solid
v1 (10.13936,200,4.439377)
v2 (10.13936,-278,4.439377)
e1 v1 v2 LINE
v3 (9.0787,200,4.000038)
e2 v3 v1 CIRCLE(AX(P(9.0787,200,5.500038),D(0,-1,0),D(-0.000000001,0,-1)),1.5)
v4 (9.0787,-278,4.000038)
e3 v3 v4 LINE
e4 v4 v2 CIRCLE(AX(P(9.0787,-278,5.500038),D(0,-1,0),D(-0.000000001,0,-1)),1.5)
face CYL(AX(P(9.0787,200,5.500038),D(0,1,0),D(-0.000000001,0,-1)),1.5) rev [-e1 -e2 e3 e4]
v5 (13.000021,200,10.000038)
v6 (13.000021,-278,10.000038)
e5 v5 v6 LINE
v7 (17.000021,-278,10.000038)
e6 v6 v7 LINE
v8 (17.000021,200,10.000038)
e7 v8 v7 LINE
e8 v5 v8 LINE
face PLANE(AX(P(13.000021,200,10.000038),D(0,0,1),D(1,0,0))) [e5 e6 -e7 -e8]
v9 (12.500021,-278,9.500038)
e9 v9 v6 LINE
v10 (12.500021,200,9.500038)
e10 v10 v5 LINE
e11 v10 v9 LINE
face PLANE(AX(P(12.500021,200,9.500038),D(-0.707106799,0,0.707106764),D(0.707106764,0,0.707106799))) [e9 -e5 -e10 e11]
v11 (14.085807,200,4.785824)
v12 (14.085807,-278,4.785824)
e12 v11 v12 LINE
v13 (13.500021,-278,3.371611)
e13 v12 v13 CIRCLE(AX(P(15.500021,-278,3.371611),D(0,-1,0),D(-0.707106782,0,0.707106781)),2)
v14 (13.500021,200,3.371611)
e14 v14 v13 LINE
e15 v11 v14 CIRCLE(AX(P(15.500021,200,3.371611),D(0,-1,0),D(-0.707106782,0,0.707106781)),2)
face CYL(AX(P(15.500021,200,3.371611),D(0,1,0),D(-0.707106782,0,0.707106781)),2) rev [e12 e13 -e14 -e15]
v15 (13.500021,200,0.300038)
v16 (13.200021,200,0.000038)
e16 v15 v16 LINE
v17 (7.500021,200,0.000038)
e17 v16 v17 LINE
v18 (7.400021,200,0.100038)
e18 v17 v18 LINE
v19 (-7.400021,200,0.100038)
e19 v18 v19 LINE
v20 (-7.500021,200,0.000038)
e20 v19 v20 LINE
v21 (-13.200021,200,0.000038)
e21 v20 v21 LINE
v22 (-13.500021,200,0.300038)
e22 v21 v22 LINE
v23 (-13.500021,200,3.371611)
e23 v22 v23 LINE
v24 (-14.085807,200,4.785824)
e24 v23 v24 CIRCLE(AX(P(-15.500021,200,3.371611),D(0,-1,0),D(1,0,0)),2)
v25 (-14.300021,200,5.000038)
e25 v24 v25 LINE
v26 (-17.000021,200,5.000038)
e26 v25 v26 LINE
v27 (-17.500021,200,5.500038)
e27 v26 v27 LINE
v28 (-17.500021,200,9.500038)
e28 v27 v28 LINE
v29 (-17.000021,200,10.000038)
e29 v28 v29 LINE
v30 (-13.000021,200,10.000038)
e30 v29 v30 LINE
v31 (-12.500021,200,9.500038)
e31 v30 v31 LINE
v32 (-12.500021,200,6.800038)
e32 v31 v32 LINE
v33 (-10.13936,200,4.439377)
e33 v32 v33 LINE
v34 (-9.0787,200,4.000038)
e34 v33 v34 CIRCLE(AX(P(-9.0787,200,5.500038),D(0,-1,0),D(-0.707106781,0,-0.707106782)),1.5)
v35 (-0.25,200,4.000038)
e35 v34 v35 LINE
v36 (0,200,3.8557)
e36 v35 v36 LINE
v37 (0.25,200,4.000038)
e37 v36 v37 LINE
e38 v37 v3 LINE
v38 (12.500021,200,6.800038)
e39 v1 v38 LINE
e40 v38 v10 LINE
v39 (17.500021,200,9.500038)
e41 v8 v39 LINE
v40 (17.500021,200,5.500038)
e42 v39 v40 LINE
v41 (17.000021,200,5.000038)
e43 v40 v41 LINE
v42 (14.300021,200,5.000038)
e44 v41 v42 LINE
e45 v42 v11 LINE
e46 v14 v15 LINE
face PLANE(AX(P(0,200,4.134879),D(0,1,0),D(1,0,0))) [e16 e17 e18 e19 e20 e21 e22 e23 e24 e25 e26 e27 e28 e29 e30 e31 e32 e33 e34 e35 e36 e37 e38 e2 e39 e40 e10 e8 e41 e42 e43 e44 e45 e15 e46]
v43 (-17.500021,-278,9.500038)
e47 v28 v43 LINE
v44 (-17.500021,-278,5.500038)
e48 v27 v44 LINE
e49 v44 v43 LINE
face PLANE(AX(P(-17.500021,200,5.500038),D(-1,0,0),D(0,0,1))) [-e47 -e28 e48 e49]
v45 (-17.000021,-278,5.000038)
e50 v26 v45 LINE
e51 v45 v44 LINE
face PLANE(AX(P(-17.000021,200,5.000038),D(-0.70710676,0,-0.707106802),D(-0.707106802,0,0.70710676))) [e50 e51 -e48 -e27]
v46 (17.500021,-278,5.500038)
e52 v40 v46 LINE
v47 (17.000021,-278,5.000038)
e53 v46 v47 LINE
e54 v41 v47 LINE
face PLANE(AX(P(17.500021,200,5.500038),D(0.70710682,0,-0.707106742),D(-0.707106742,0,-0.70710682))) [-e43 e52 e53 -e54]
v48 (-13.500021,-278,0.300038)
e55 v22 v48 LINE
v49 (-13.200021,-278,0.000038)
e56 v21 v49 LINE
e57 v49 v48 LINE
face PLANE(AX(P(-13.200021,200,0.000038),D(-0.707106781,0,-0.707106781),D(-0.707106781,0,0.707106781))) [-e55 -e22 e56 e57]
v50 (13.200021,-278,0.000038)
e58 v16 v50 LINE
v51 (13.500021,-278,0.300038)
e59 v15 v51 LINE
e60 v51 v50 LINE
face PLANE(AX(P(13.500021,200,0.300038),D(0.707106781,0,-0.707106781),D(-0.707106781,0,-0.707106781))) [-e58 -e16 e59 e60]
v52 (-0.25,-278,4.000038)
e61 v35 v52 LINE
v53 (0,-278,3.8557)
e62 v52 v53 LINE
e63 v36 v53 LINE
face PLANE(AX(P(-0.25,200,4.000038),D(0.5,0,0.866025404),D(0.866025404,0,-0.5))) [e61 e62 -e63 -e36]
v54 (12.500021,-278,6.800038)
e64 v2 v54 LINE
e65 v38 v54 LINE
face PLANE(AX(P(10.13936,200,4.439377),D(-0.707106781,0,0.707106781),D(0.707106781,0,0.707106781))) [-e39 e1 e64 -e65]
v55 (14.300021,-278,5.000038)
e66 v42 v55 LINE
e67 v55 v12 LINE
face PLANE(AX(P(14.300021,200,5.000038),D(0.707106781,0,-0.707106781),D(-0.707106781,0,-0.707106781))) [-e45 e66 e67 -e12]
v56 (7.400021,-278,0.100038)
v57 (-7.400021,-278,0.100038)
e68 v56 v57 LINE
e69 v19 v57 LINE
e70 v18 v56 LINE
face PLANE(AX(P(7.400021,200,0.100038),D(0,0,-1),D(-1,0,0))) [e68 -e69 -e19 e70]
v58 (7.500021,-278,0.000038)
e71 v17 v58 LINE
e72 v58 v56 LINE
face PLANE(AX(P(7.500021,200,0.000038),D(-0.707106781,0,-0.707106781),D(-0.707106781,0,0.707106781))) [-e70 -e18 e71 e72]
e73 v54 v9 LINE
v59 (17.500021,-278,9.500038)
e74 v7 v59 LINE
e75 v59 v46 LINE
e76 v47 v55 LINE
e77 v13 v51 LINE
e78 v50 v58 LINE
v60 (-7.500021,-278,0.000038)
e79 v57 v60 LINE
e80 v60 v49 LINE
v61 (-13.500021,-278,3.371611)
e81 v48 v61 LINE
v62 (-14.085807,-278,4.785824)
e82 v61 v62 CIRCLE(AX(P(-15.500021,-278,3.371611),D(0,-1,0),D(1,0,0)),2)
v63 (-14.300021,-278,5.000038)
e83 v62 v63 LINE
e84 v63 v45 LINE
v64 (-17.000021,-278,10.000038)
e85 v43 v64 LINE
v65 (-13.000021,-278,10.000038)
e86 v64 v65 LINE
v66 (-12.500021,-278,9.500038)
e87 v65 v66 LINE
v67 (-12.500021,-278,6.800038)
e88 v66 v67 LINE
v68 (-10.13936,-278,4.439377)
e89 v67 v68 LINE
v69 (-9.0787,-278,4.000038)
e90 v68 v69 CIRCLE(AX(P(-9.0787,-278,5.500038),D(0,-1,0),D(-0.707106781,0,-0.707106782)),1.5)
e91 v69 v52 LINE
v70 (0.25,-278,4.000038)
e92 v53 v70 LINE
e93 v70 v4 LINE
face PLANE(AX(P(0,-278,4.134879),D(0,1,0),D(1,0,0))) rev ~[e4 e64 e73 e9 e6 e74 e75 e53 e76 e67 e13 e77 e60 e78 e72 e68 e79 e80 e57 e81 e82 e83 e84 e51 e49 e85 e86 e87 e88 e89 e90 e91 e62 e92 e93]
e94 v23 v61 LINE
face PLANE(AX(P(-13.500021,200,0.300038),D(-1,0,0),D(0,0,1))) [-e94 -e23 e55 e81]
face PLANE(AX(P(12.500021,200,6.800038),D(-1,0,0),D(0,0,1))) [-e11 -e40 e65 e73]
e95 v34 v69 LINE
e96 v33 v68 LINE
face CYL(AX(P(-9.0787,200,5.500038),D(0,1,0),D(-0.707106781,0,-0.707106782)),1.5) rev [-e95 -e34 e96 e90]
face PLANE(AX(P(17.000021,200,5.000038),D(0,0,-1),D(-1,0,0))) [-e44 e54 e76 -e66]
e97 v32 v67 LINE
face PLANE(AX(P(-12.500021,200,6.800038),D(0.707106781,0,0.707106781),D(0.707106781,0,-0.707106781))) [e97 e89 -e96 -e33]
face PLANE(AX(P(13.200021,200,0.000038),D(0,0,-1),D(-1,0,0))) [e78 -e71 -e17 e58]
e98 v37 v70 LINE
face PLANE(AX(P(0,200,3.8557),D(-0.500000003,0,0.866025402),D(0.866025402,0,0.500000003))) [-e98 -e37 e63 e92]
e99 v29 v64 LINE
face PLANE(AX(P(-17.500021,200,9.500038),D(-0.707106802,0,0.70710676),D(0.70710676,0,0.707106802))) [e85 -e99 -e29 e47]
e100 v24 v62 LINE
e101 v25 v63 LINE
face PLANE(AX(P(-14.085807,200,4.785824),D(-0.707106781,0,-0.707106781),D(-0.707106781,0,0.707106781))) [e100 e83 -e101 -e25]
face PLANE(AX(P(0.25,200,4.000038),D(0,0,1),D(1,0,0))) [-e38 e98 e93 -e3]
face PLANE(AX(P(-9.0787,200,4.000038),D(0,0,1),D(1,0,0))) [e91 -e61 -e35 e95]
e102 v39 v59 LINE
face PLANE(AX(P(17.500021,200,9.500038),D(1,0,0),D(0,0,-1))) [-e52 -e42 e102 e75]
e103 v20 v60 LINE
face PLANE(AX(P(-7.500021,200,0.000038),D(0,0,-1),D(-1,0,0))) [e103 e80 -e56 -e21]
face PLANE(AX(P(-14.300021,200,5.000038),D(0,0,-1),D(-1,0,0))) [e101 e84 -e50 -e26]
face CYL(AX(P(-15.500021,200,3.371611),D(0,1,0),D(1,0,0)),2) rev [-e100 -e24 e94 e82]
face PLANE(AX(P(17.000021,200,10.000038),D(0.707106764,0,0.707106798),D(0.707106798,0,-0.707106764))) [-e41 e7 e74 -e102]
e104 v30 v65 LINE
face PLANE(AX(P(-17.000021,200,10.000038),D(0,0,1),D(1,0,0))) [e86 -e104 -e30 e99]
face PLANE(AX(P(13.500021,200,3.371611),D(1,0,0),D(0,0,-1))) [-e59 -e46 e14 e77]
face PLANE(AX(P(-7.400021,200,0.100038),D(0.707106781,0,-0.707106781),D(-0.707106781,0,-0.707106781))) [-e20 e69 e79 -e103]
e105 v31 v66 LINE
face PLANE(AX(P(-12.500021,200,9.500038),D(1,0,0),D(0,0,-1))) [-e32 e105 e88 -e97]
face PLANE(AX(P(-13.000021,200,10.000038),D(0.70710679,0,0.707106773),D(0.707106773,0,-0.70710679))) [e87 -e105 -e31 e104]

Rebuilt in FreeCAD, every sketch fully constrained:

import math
import FreeCAD as App
import Part
import Sketcher

V = App.Vector
Q = App.Units.Quantity

doc = App.newDocument("Part")
body = doc.addObject("PartDesign::Body", "Body")

# Sketch on XZ plane
sketch1 = doc.addObject("Sketcher::SketchObject", "Sketch")
body.addObject(sketch1)
sketch1.AttachmentSupport = (doc.XZ_Plane, [""])
sketch1.MapMode = "FlatFace"
sketch1.AttachmentOffset = App.Placement(V(0, 0, -200), App.Rotation())
sketch1.addGeometry(Part.LineSegment(V(0, 3.8557, 0), V(0.25, 4.000038, 0)), False)
sketch1.addGeometry(Part.LineSegment(V(0.25, 4.000038, 0), V(9.0787, 4.000038, 0)), False)
sketch1.addGeometry(Part.ArcOfCircle(Part.Circle(V(9.0787, 5.500038, 0), V(0, 0, 1), 1.5), math.radians(-90), math.radians(-45)), False)
sketch1.addGeometry(Part.LineSegment(V(10.13936, 4.439377, 0), V(12.500021, 6.800038, 0)), False)
sketch1.addGeometry(Part.LineSegment(V(12.500021, 6.800038, 0), V(12.500021, 9.500038, 0)), False)
sketch1.addGeometry(Part.LineSegment(V(12.500021, 9.500038, 0), V(13.000021, 10.000038, 0)), False)
sketch1.addGeometry(Part.LineSegment(V(13.000021, 10.000038, 0), V(17.000021, 10.000038, 0)), False)
sketch1.addGeometry(Part.LineSegment(V(17.000021, 10.000038, 0), V(17.500021, 9.500038, 0)), False)
sketch1.addGeometry(Part.LineSegment(V(17.500021, 9.500038, 0), V(17.500021, 5.500038, 0)), False)
sketch1.addGeometry(Part.LineSegment(V(17.500021, 5.500038, 0), V(17.000021, 5.000038, 0)), False)
sketch1.addGeometry(Part.LineSegment(V(17.000021, 5.000038, 0), V(14.300021, 5.000038, 0)), False)
sketch1.addGeometry(Part.LineSegment(V(14.300021, 5.000038, 0), V(14.085807, 4.785824, 0)), False)
sketch1.addGeometry(Part.ArcOfCircle(Part.Circle(V(15.500021, 3.371611, 0), V(0, 0, 1), 2), math.radians(135), math.radians(180)), False)
sketch1.addGeometry(Part.LineSegment(V(13.500021, 3.371611, 0), V(13.500021, 0.300038, 0)), False)
sketch1.addGeometry(Part.LineSegment(V(13.500021, 0.300038, 0), V(13.200021, 0.000038, 0)), False)
sketch1.addGeometry(Part.LineSegment(V(13.200021, 0.000038, 0), V(7.500021, 0.000038, 0)), False)
sketch1.addGeometry(Part.LineSegment(V(7.500021, 0.000038, 0), V(7.400021, 0.100038, 0)), False)
sketch1.addGeometry(Part.LineSegment(V(7.400021, 0.100038, 0), V(-7.400021, 0.100038, 0)), False)
sketch1.addGeometry(Part.LineSegment(V(-7.400021, 0.100038, 0), V(-7.500021, 0.000038, 0)), False)
sketch1.addGeometry(Part.LineSegment(V(-7.500021, 0.000038, 0), V(-13.200021, 0.000038, 0)), False)
sketch1.addGeometry(Part.LineSegment(V(-13.200021, 0.000038, 0), V(-13.500021, 0.300038, 0)), False)
sketch1.addGeometry(Part.LineSegment(V(-13.500021, 0.300038, 0), V(-13.500021, 3.371611, 0)), False)
sketch1.addGeometry(Part.ArcOfCircle(Part.Circle(V(-15.500021, 3.371611, 0), V(0, 0, 1), 2), math.radians(0), math.radians(45)), False)
sketch1.addGeometry(Part.LineSegment(V(-14.085807, 4.785824, 0), V(-14.300021, 5.000038, 0)), False)
sketch1.addGeometry(Part.LineSegment(V(-14.300021, 5.000038, 0), V(-17.000021, 5.000038, 0)), False)
sketch1.addGeometry(Part.LineSegment(V(-17.000021, 5.000038, 0), V(-17.500021, 5.500038, 0)), False)
sketch1.addGeometry(Part.LineSegment(V(-17.500021, 5.500038, 0), V(-17.500021, 9.500038, 0)), False)
sketch1.addGeometry(Part.LineSegment(V(-17.500021, 9.500038, 0), V(-17.000021, 10.000038, 0)), False)
sketch1.addGeometry(Part.LineSegment(V(-17.000021, 10.000038, 0), V(-13.000021, 10.000038, 0)), False)
sketch1.addGeometry(Part.LineSegment(V(-13.000021, 10.000038, 0), V(-12.500021, 9.500038, 0)), False)
sketch1.addGeometry(Part.LineSegment(V(-12.500021, 9.500038, 0), V(-12.500021, 6.800038, 0)), False)
sketch1.addGeometry(Part.LineSegment(V(-12.500021, 6.800038, 0), V(-10.13936, 4.439377, 0)), False)
sketch1.addGeometry(Part.ArcOfCircle(Part.Circle(V(-9.0787, 5.500038, 0), V(0, 0, 1), 1.5), math.radians(-135), math.radians(-90)), False)
sketch1.addGeometry(Part.LineSegment(V(-9.0787, 4.000038, 0), V(-0.25, 4.000038, 0)), False)
sketch1.addGeometry(Part.LineSegment(V(-0.25, 4.000038, 0), V(0, 3.8557, 0)), False)
sketch1.addConstraint(Sketcher.Constraint("Coincident", 0, 2, 1, 1))
sketch1.addConstraint(Sketcher.Constraint("Tangent", 1, 2, 2, 1))
sketch1.addConstraint(Sketcher.Constraint("Tangent", 2, 2, 3, 1))
sketch1.addConstraint(Sketcher.Constraint("Coincident", 3, 2, 4, 1))
sketch1.addConstraint(Sketcher.Constraint("Coincident", 4, 2, 5, 1))
sketch1.addConstraint(Sketcher.Constraint("Coincident", 5, 2, 6, 1))
sketch1.addConstraint(Sketcher.Constraint("Coincident", 6, 2, 7, 1))
sketch1.addConstraint(Sketcher.Constraint("Coincident", 7, 2, 8, 1))
sketch1.addConstraint(Sketcher.Constraint("Coincident", 8, 2, 9, 1))
sketch1.addConstraint(Sketcher.Constraint("Coincident", 9, 2, 10, 1))
sketch1.addConstraint(Sketcher.Constraint("Coincident", 10, 2, 11, 1))
sketch1.addConstraint(Sketcher.Constraint("Tangent", 11, 2, 12, 1))
sketch1.addConstraint(Sketcher.Constraint("Tangent", 12, 2, 13, 1))
sketch1.addConstraint(Sketcher.Constraint("Coincident", 13, 2, 14, 1))
sketch1.addConstraint(Sketcher.Constraint("Coincident", 14, 2, 15, 1))
sketch1.addConstraint(Sketcher.Constraint("Coincident", 15, 2, 16, 1))
sketch1.addConstraint(Sketcher.Constraint("Coincident", 16, 2, 17, 1))
sketch1.addConstraint(Sketcher.Constraint("Coincident", 17, 2, 18, 1))
sketch1.addConstraint(Sketcher.Constraint("Coincident", 18, 2, 19, 1))
sketch1.addConstraint(Sketcher.Constraint("Coincident", 19, 2, 20, 1))
sketch1.addConstraint(Sketcher.Constraint("Coincident", 20, 2, 21, 1))
sketch1.addConstraint(Sketcher.Constraint("Tangent", 21, 2, 22, 1))
sketch1.addConstraint(Sketcher.Constraint("Tangent", 22, 2, 23, 1))
sketch1.addConstraint(Sketcher.Constraint("Coincident", 23, 2, 24, 1))
sketch1.addConstraint(Sketcher.Constraint("Coincident", 24, 2, 25, 1))
sketch1.addConstraint(Sketcher.Constraint("Coincident", 25, 2, 26, 1))
sketch1.addConstraint(Sketcher.Constraint("Coincident", 26, 2, 27, 1))
sketch1.addConstraint(Sketcher.Constraint("Coincident", 27, 2, 28, 1))
sketch1.addConstraint(Sketcher.Constraint("Coincident", 28, 2, 29, 1))
sketch1.addConstraint(Sketcher.Constraint("Coincident", 29, 2, 30, 1))
sketch1.addConstraint(Sketcher.Constraint("Coincident", 30, 2, 31, 1))
sketch1.addConstraint(Sketcher.Constraint("Tangent", 31, 2, 32, 1))
sketch1.addConstraint(Sketcher.Constraint("Tangent", 32, 2, 33, 1))
sketch1.addConstraint(Sketcher.Constraint("Coincident", 33, 2, 34, 1))
sketch1.addConstraint(Sketcher.Constraint("Coincident", 34, 2, 0, 1))
sketch1.addConstraint(Sketcher.Constraint("Horizontal", 1))
sketch1.addConstraint(Sketcher.Constraint("Vertical", 4))
sketch1.addConstraint(Sketcher.Constraint("Horizontal", 6))
sketch1.addConstraint(Sketcher.Constraint("Vertical", 8))
sketch1.addConstraint(Sketcher.Constraint("Horizontal", 10))
sketch1.addConstraint(Sketcher.Constraint("Vertical", 13))
sketch1.addConstraint(Sketcher.Constraint("Horizontal", 15))
sketch1.addConstraint(Sketcher.Constraint("Horizontal", 17))
sketch1.addConstraint(Sketcher.Constraint("Horizontal", 19))
sketch1.addConstraint(Sketcher.Constraint("Vertical", 21))
sketch1.addConstraint(Sketcher.Constraint("Horizontal", 24))
sketch1.addConstraint(Sketcher.Constraint("Vertical", 26))
sketch1.addConstraint(Sketcher.Constraint("Horizontal", 28))
sketch1.addConstraint(Sketcher.Constraint("Vertical", 30))
sketch1.addConstraint(Sketcher.Constraint("Horizontal", 33))
sketch1.addConstraint(Sketcher.Constraint("Equal", 12, 22))
sketch1.addConstraint(Sketcher.Constraint("Equal", 2, 32))
sketch1.addConstraint(Sketcher.Constraint("Symmetric", 12, 3, 22, 3, -2))
sketch1.addConstraint(Sketcher.Constraint("Symmetric", 2, 3, 32, 3, -2))
sketch1.addConstraint(Sketcher.Constraint("Symmetric", 15, 2, 18, 2, -2))
sketch1.addConstraint(Sketcher.Constraint("Symmetric", 10, 2, 23, 2, -2))
sketch1.addConstraint(Sketcher.Constraint("Symmetric", 8, 2, 25, 2, -2))
sketch1.addConstraint(Sketcher.Constraint("Symmetric", 6, 2, 27, 2, -2))
sketch1.addConstraint(Sketcher.Constraint("Symmetric", 4, 2, 29, 2, -2))
sketch1.addConstraint(Sketcher.Constraint("PointOnObject", 34, 2, -2))
sketch1.addConstraint(Sketcher.Constraint("Parallel", 3, 5))
sketch1.addConstraint(Sketcher.Constraint("Perpendicular", 5, 7))
sketch1.addConstraint(Sketcher.Constraint("Perpendicular", 7, 9))
sketch1.addConstraint(Sketcher.Constraint("Parallel", 9, 11))
sketch1.addConstraint(Sketcher.Constraint("Parallel", 11, 14))
sketch1.addConstraint(Sketcher.Constraint("Perpendicular", 14, 16))
sketch1.addConstraint(Sketcher.Constraint("Perpendicular", 16, 18))
sketch1.addConstraint(Sketcher.Constraint("Perpendicular", 18, 20))
sketch1.addConstraint(Sketcher.Constraint("Parallel", 20, 23))
sketch1.addConstraint(Sketcher.Constraint("Parallel", 23, 25))
sketch1.addConstraint(Sketcher.Constraint("Perpendicular", 25, 27))
sketch1.addConstraint(Sketcher.Constraint("Perpendicular", 27, 29))
sketch1.addConstraint(Sketcher.Constraint("Parallel", 29, 31))
sketch1.addConstraint(Sketcher.Constraint("Horizontal", 4, 2, 7, 2))
sketch1.addConstraint(Sketcher.Constraint("Horizontal", 32, 3, 8, 2))
sketch1.addConstraint(Sketcher.Constraint("Horizontal", 13, 2, 20, 2))
sketch1.addConstraint(Sketcher.Constraint("Vertical", 6, 2, 9, 2))
sketch1.addConstraint(Sketcher.Constraint("Equal", 1, 33))
sketch1.addConstraint(Sketcher.Constraint("Equal", 24, 4))
sketch1.addConstraint(Sketcher.Constraint("Equal", 28, 8))
sketch1.addConstraint(Sketcher.Constraint("Radius", 12, Q("2 mm")))
sketch1.addConstraint(Sketcher.Constraint("Radius", 2, Q("1.5 mm")))
sketch1.addConstraint(Sketcher.Constraint("DistanceX", 6, 1, 6, 2, Q("4 mm")))
sketch1.addConstraint(Sketcher.Constraint("Angle", 0, Q("30 deg")))
sketch1.addConstraint(Sketcher.Constraint("DistanceX", 10, 2, 10, 1, Q("2.7 mm")))
sketch1.addConstraint(Sketcher.Constraint("DistanceX", 15, 2, 15, 1, Q("5.7 mm")))
sketch1.addConstraint(Sketcher.Constraint("DistanceX", 3, 2, 12, 3, Q("3 mm")))
sketch1.addConstraint(Sketcher.Constraint("DistanceX", 4, 2, 7, 2, Q("5 mm")))
sketch1.addConstraint(Sketcher.Constraint("DistanceY", 14, 2, 10, 2, Q("5 mm")))
sketch1.addConstraint(Sketcher.Constraint("DistanceX", 15, 2, 13, 2, Q("6 mm")))
sketch1.addConstraint(Sketcher.Constraint("DistanceX", 16, 2, 15, 2, Q("0.1 mm")))
sketch1.addConstraint(Sketcher.Constraint("DistanceX", 33, 2, 0, 2, Q("0.5 mm")))
sketch1.addConstraint(Sketcher.Constraint("DistanceX", 1, 1, 1, 2, Q("8.8287 mm")))
sketch1.addConstraint(Sketcher.Constraint("DistanceY", -1, 1, 34, 2, Q("3.8557 mm")))
pad1 = doc.addObject("PartDesign::Pad", "Pad")
body.addObject(pad1)
pad1.Profile = sketch1
pad1.Length = 478

doc.recompute()
